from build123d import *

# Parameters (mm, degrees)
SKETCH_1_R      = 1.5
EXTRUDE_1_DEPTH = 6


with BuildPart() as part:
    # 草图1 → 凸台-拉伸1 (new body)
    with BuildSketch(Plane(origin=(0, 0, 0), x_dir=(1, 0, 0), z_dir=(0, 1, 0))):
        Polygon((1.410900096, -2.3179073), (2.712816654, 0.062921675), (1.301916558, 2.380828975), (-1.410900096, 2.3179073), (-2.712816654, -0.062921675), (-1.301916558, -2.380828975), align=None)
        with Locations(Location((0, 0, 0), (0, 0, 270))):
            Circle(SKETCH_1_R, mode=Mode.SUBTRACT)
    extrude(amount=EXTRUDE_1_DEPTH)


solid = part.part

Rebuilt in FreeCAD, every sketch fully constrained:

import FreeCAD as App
import Part
import Sketcher
from FreeCAD import Vector

doc = App.newDocument("Part")
params = doc.addObject("Spreadsheet::Sheet", "Params")
for row, (alias, value) in enumerate([
    ("sketch1_diameter", "3 mm"),
    ("pad1_length", "6 mm"),
], start=1):
    params.set(f"A{row}", alias)
    params.set(f"B{row}", "=" + value)
    params.setAlias(f"B{row}", alias)

body = doc.addObject("PartDesign::Body", "Body")

# Sketch on XZ plane
sketch1 = body.newObject("Sketcher::SketchObject", "Sketch")
sketch1.AttachmentSupport = (doc.getObject("XZ_Plane"), [""])
sketch1.MapMode = "FlatFace"
sketch1.addGeometry(Part.LineSegment(Vector(1.4109, 2.317907, 0), Vector(2.712817, -0.062922, 0)), False)
sketch1.addGeometry(Part.LineSegment(Vector(2.712817, -0.062922, 0), Vector(1.301917, -2.380829, 0)), False)
sketch1.addGeometry(Part.LineSegment(Vector(1.301917, -2.380829, 0), Vector(-1.4109, -2.317907, 0)), False)
sketch1.addGeometry(Part.LineSegment(Vector(-1.4109, -2.317907, 0), Vector(-2.712817, 0.062922, 0)), False)
sketch1.addGeometry(Part.LineSegment(Vector(-2.712817, 0.062922, 0), Vector(-1.301917, 2.380829, 0)), False)
sketch1.addGeometry(Part.LineSegment(Vector(-1.301917, 2.380829, 0), Vector(1.4109, 2.317907, 0)), False)
sketch1.addGeometry(Part.Circle(Vector(0, 0, 0), Vector(0, 0, 1), 1.5), False)
sketch1.addConstraint(Sketcher.Constraint("Coincident", 0, 2, 1, 1))
sketch1.addConstraint(Sketcher.Constraint("Coincident", 1, 2, 2, 1))
sketch1.addConstraint(Sketcher.Constraint("Coincident", 2, 2, 3, 1))
sketch1.addConstraint(Sketcher.Constraint("Coincident", 3, 2, 4, 1))
sketch1.addConstraint(Sketcher.Constraint("Coincident", 4, 2, 5, 1))
sketch1.addConstraint(Sketcher.Constraint("Coincident", 5, 2, 0, 1))
sketch1.addConstraint(Sketcher.Constraint("Coincident", 6, 3, -1, 1))
sketch1.addConstraint(Sketcher.Constraint("Symmetric", 0, 2, 3, 2, -1, 1))
sketch1.addConstraint(Sketcher.Constraint("Symmetric", 1, 2, 4, 2, -1, 1))
sketch1.addConstraint(Sketcher.Constraint("Symmetric", 2, 2, 5, 2, -1, 1))
sketch1.addConstraint(Sketcher.Constraint("Equal", 0, 1))
sketch1.addConstraint(Sketcher.Constraint("Equal", 1, 2))
sketch1.addConstraint(Sketcher.Constraint("Diameter", 6, 3.0))
sketch1.addConstraint(Sketcher.Constraint("DistanceX", 2, 2, -1, 1, 1.4109))
sketch1.addConstraint(Sketcher.Constraint("DistanceX", 1, 2, 0, 2, 1.4109))
sketch1.addConstraint(Sketcher.Constraint("DistanceY", 0, 2, -1, 1, 0.062922))
sketch1.addConstraint(Sketcher.Constraint("DistanceY", 1, 2, -1, 1, 2.380829))
sketch1.setExpression("Constraints[12]", "Params.sketch1_diameter")
pad1 = body.newObject("PartDesign::Pad", "Pad")
pad1.Profile = sketch1
pad1.setExpression("Length", "Params.pad1_length")
pad1.Reversed = True

doc.recompute()
